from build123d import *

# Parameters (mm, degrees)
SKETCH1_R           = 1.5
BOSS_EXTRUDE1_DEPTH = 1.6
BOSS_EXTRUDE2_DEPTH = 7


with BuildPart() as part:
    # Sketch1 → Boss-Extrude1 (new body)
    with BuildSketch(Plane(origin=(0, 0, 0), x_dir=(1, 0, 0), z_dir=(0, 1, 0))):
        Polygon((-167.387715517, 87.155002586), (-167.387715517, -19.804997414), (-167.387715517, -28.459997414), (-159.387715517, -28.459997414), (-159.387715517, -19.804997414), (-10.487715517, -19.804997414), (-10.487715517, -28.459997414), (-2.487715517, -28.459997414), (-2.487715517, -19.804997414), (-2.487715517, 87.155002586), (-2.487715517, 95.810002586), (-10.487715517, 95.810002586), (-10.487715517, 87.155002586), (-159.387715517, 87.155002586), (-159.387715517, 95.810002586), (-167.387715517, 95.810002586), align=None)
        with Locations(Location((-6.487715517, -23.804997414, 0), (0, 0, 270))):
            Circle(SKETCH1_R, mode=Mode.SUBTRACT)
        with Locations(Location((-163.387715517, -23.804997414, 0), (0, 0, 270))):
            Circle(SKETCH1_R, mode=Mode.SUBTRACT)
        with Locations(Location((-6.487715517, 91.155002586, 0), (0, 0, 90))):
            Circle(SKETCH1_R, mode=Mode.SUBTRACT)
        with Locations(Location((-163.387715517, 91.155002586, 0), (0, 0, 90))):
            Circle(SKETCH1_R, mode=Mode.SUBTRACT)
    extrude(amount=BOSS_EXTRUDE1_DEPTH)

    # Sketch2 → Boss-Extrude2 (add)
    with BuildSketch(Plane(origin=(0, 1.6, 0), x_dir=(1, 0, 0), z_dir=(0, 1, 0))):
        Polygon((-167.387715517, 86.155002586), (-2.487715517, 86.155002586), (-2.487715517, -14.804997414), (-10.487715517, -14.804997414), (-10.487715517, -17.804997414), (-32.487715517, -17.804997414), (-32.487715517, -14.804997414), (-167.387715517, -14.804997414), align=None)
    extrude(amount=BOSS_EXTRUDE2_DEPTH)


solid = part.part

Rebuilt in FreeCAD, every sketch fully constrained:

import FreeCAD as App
import Part
import Sketcher

V = App.Vector


def add_polygon(sketch, points):
    """Adds a closed chain of lines whose ends are joined by coincident constraints."""
    first, n = sketch.GeometryCount, len(points)
    for a, b in zip(points, points[1:] + points[:1]):
        sketch.addGeometry(Part.LineSegment(App.Vector(*a, 0), App.Vector(*b, 0)), False)
    for i in range(n):
        sketch.addConstraint(Sketcher.Constraint("Coincident", first + i, 2, first + (i + 1) % n, 1))

doc = App.newDocument("Part")
body = doc.addObject("PartDesign::Body", "Body")

# Sketch on XZ plane
sketch1 = doc.addObject("Sketcher::SketchObject", "Sketch")
body.addObject(sketch1)
sketch1.AttachmentSupport = (doc.XZ_Plane, [""])
sketch1.MapMode = "FlatFace"
add_polygon(sketch1, [(-167.387716, 28.459997), (-159.387716, 28.459997), (-159.387716, 19.804997), (-10.487716, 19.804997), (-10.487716, 28.459997), (-2.487716, 28.459997), (-2.487716, -95.810003), (-10.487716, -95.810003), (-10.487716, -87.155003), (-159.387716, -87.155003), (-159.387716, -95.810003), (-167.387716, -95.810003)])  # lines 0-11
sketch1.addGeometry(Part.Circle(V(-163.387716, 23.804997, 0), V(0, 0, 1), 1.5), False)  # 12
sketch1.addGeometry(Part.Circle(V(-6.487716, 23.804997, 0), V(0, 0, 1), 1.5), False)  # 13
sketch1.addGeometry(Part.Circle(V(-163.387716, -91.155003, 0), V(0, 0, 1), 1.5), False)  # 14
sketch1.addGeometry(Part.Circle(V(-6.487716, -91.155003, 0), V(0, 0, 1), 1.5), False)  # 15
sketch1.addConstraint([
    Sketcher.Constraint("Horizontal", 0),
    Sketcher.Constraint("Vertical", 1),
    Sketcher.Constraint("Horizontal", 2),
    Sketcher.Constraint("Vertical", 3),
    Sketcher.Constraint("Horizontal", 4),
    Sketcher.Constraint("Vertical", 5),
    Sketcher.Constraint("Horizontal", 6),
    Sketcher.Constraint("Vertical", 7),
    Sketcher.Constraint("Horizontal", 8),
    Sketcher.Constraint("Vertical", 9),
    Sketcher.Constraint("Horizontal", 10),
    Sketcher.Constraint("Vertical", 11),
    Sketcher.Constraint("Equal", 12, 13),
    Sketcher.Constraint("Equal", 13, 14),
    Sketcher.Constraint("Equal", 14, 15),
    Sketcher.Constraint("Horizontal", 12, 3, 13, 3),
    Sketcher.Constraint("Horizontal", 14, 3, 15, 3),
    Sketcher.Constraint("Horizontal", 0, 2, 3, 2),
    Sketcher.Constraint("Horizontal", 6, 2, 9, 2),
    Sketcher.Constraint("Vertical", 12, 3, 14, 3),
    Sketcher.Constraint("Vertical", 13, 3, 15, 3),
    Sketcher.Constraint("Vertical", 3, 2, 6, 2),
    Sketcher.Constraint("Vertical", 1, 2, 8, 2),
    Sketcher.Constraint("Equal", 0, 4),
    Sketcher.Constraint("Equal", 3, 7),
    Sketcher.Constraint("Diameter", 12, 3.0),
    Sketcher.Constraint("DistanceX", 0, 1, 0, 2, 8.0),
    Sketcher.Constraint("DistanceX", 2, 1, 2, 2, 148.9),
    Sketcher.Constraint("DistanceX", 12, 3, 0, 2, 4.0),
    Sketcher.Constraint("DistanceY", 1, 2, 12, 3, 4.0),
    Sketcher.Constraint("DistanceX", 2, 2, 13, 3, 4.0),
    Sketcher.Constraint("DistanceY", 15, 3, 7, 2, 4.0),
    Sketcher.Constraint("DistanceY", 5, 2, 5, 1, 124.27),
    Sketcher.Constraint("DistanceY", 1, 2, 1, 1, 8.655),
    Sketcher.Constraint("DistanceX", 12, 3, -1, 1, 163.387716),
    Sketcher.Constraint("DistanceY", -1, 1, 12, 3, 23.804997),
])
pad1 = doc.addObject("PartDesign::Pad", "Pad")
body.addObject(pad1)
pad1.Profile = sketch1
pad1.Length = 1.6
pad1.Reversed = True

# Sketch on XZ plane
sketch2 = doc.addObject("Sketcher::SketchObject", "Sketch001")
body.addObject(sketch2)
sketch2.AttachmentSupport = (doc.XZ_Plane, [""])
sketch2.MapMode = "FlatFace"
sketch2.AttachmentOffset = App.Placement(V(0, 0, -1.6), App.Rotation())
add_polygon(sketch2, [(-2.487716, -86.155003), (-167.387716, -86.155003), (-167.387716, 14.804997), (-32.487716, 14.804997), (-32.487716, 17.804997), (-10.487716, 17.804997), (-10.487716, 14.804997), (-2.487716, 14.804997)])  # lines 0-7
sketch2.addConstraint([
    Sketcher.Constraint("Horizontal", 0),
    Sketcher.Constraint("Vertical", 1),
    Sketcher.Constraint("Horizontal", 2),
    Sketcher.Constraint("Vertical", 3),
    Sketcher.Constraint("Horizontal", 4),
    Sketcher.Constraint("Vertical", 5),
    Sketcher.Constraint("Horizontal", 6),
    Sketcher.Constraint("Vertical", 7),
    Sketcher.Constraint("Horizontal", 2, 2, 5, 2),
    Sketcher.Constraint("DistanceX", 4, 1, 4, 2, 22.0),
    Sketcher.Constraint("DistanceX", 6, 1, 6, 2, 8.0),
    Sketcher.Constraint("DistanceY", 3, 1, 3, 2, 3.0),
    Sketcher.Constraint("DistanceX", 0, 2, 0, 1, 164.9),
    Sketcher.Constraint("DistanceY", 1, 1, 1, 2, 100.96),
    Sketcher.Constraint("DistanceX", 0, 2, -1, 1, 167.387716),
    Sketcher.Constraint("DistanceY", 0, 2, -1, 1, 86.155003),
])
pad2 = doc.addObject("PartDesign::Pad", "Pad001")
body.addObject(pad2)
pad2.Profile = sketch2
pad2.Length = 7
pad2.Reversed = True

doc.recompute()
